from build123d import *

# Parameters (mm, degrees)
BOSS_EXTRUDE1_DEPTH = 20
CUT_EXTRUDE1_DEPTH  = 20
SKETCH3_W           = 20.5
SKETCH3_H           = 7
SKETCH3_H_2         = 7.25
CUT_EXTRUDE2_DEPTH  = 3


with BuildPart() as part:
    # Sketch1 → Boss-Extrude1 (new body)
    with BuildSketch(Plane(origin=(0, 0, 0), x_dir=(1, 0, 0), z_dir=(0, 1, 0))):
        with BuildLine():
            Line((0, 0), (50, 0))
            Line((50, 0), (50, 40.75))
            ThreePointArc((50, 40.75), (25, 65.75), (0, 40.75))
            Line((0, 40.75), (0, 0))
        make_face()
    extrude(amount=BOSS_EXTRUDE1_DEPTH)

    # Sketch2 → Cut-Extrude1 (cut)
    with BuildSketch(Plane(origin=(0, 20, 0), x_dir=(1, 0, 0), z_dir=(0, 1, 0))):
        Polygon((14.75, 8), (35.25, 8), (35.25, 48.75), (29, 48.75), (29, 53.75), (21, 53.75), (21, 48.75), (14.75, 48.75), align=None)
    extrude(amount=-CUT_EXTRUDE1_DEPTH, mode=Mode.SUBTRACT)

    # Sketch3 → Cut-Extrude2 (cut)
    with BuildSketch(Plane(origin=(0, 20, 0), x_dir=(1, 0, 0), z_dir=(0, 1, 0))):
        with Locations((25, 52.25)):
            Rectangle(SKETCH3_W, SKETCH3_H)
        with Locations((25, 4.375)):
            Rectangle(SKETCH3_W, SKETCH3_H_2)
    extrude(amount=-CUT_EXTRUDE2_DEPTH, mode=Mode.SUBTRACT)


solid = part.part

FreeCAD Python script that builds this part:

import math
import FreeCAD as App
import Part
import Sketcher
Q = App.Units.Quantity

doc = App.newDocument("Part")
body = doc.addObject("PartDesign::Body", "Body")

# Sketch on XZ plane
sketch1 = doc.addObject("Sketcher::SketchObject", "Sketch")
body.addObject(sketch1)
sketch1.AttachmentSupport = (doc.XZ_Plane, [""])
sketch1.MapMode = "FlatFace"
sketch1.addGeometry([
    Part.LineSegment(App.Vector(0, 0, 0), App.Vector(50, 0, 0)),
    Part.LineSegment(App.Vector(50, 0, 0), App.Vector(50, -40.75, 0)),
    Part.ArcOfCircle(Part.Circle(App.Vector(25, -40.75, 0), App.Vector(0, 0, 1), 25), math.radians(180), math.radians(360)),
    Part.LineSegment(App.Vector(0, -40.75, 0), App.Vector(0, 0, 0)),
], False)
sketch1.addConstraint([
    Sketcher.Constraint("Coincident", 0, 2, 1, 1),
    Sketcher.Constraint("Tangent", 1, 2, 2, 2),
    Sketcher.Constraint("Tangent", 2, 1, 3, 1),
    Sketcher.Constraint("Coincident", 3, 2, 0, 1),
    Sketcher.Constraint("Horizontal", 0),
    Sketcher.Constraint("Vertical", 1),
    Sketcher.Constraint("Vertical", 3),
    Sketcher.Constraint("Coincident", 3, 2, -1, 1),
    Sketcher.Constraint("Radius", 2, Q("25 mm")),
    Sketcher.Constraint("DistanceY", 1, 2, 1, 1, Q("40.75 mm")),
])
pad1 = doc.addObject("PartDesign::Pad", "Pad")
body.addObject(pad1)
pad1.Profile = sketch1
pad1.Length = 20
pad1.Reversed = True

# Sketch on XZ plane
sketch2 = doc.addObject("Sketcher::SketchObject", "Sketch001")
body.addObject(sketch2)
sketch2.AttachmentSupport = (doc.XZ_Plane, [""])
sketch2.MapMode = "FlatFace"
sketch2.AttachmentOffset = App.Placement(App.Vector(0, 0, -20), App.Rotation())
sketch2.addGeometry([
    Part.LineSegment(App.Vector(14.75, -8, 0), App.Vector(35.25, -8, 0)),  # 0
    Part.LineSegment(App.Vector(35.25, -8, 0), App.Vector(35.25, -48.75, 0)),  # 1
    Part.LineSegment(App.Vector(35.25, -48.75, 0), App.Vector(29, -48.75, 0)),  # 2
    Part.LineSegment(App.Vector(29, -48.75, 0), App.Vector(29, -53.75, 0)),  # 3
    Part.LineSegment(App.Vector(29, -53.75, 0), App.Vector(21, -53.75, 0)),  # 4
    Part.LineSegment(App.Vector(21, -53.75, 0), App.Vector(21, -48.75, 0)),  # 5
    Part.LineSegment(App.Vector(21, -48.75, 0), App.Vector(14.75, -48.75, 0)),  # 6
    Part.LineSegment(App.Vector(14.75, -48.75, 0), App.Vector(14.75, -8, 0)),  # 7
], False)
sketch2.addConstraint([
    Sketcher.Constraint("Coincident", 0, 2, 1, 1),
    Sketcher.Constraint("Coincident", 1, 2, 2, 1),
    Sketcher.Constraint("Coincident", 2, 2, 3, 1),
    Sketcher.Constraint("Coincident", 3, 2, 4, 1),
    Sketcher.Constraint("Coincident", 4, 2, 5, 1),
    Sketcher.Constraint("Coincident", 5, 2, 6, 1),
    Sketcher.Constraint("Coincident", 6, 2, 7, 1),
    Sketcher.Constraint("Coincident", 7, 2, 0, 1),
    Sketcher.Constraint("Horizontal", 0),
    Sketcher.Constraint("Vertical", 1),
    Sketcher.Constraint("Horizontal", 2),
    Sketcher.Constraint("Vertical", 3),
    Sketcher.Constraint("Horizontal", 4),
    Sketcher.Constraint("Vertical", 5),
    Sketcher.Constraint("Horizontal", 6),
    Sketcher.Constraint("Vertical", 7),
    Sketcher.Constraint("Horizontal", 2, 2, 5, 2),
    Sketcher.Constraint("Equal", 2, 6),
    Sketcher.Constraint("DistanceX", 4, 2, 4, 1, Q("8 mm")),
    Sketcher.Constraint("DistanceY", 3, 2, 3, 1, Q("5 mm")),
    Sketcher.Constraint("DistanceX", 0, 1, 0, 2, Q("20.5 mm")),
    Sketcher.Constraint("DistanceY", 0, 2, -1, 1, Q("8 mm")),
    Sketcher.Constraint("DistanceX", -1, 1, 2, 2, Q("29 mm")),
    Sketcher.Constraint("DistanceY", 1, 2, 1, 1, Q("40.75 mm")),
])
pocket1 = doc.addObject("PartDesign::Pocket", "Pocket")
body.addObject(pocket1)
pocket1.Profile = sketch2
pocket1.Length = 20
pocket1.Reversed = True

# Sketch on XZ plane
sketch3 = doc.addObject("Sketcher::SketchObject", "Sketch002")
body.addObject(sketch3)
sketch3.AttachmentSupport = (doc.XZ_Plane, [""])
sketch3.MapMode = "FlatFace"
sketch3.AttachmentOffset = App.Placement(App.Vector(0, 0, -20), App.Rotation())
sketch3.addGeometry([
    Part.LineSegment(App.Vector(14.75, -55.75, 0), App.Vector(14.75, -48.75, 0)),  # 0
    Part.LineSegment(App.Vector(14.75, -48.75, 0), App.Vector(35.25, -48.75, 0)),  # 1
    Part.LineSegment(App.Vector(35.25, -48.75, 0), App.Vector(35.25, -55.75, 0)),  # 2
    Part.LineSegment(App.Vector(35.25, -55.75, 0), App.Vector(14.75, -55.75, 0)),  # 3
    Part.LineSegment(App.Vector(14.75, -8, 0), App.Vector(14.75, -0.75, 0)),  # 4
    Part.LineSegment(App.Vector(14.75, -0.75, 0), App.Vector(35.25, -0.75, 0)),  # 5
    Part.LineSegment(App.Vector(35.25, -0.75, 0), App.Vector(35.25, -8, 0)),  # 6
    Part.LineSegment(App.Vector(35.25, -8, 0), App.Vector(14.75, -8, 0)),  # 7
], False)
sketch3.addConstraint([
    Sketcher.Constraint("Coincident", 0, 2, 1, 1),
    Sketcher.Constraint("Coincident", 1, 2, 2, 1),
    Sketcher.Constraint("Coincident", 2, 2, 3, 1),
    Sketcher.Constraint("Coincident", 3, 2, 0, 1),
    Sketcher.Constraint("Coincident", 4, 2, 5, 1),
    Sketcher.Constraint("Coincident", 5, 2, 6, 1),
    Sketcher.Constraint("Coincident", 6, 2, 7, 1),
    Sketcher.Constraint("Coincident", 7, 2, 4, 1),
    Sketcher.Constraint("Vertical", 0),
    Sketcher.Constraint("Horizontal", 1),
    Sketcher.Constraint("Vertical", 2),
    Sketcher.Constraint("Horizontal", 3),
    Sketcher.Constraint("Vertical", 4),
    Sketcher.Constraint("Horizontal", 5),
    Sketcher.Constraint("Vertical", 6),
    Sketcher.Constraint("Horizontal", 7),
    Sketcher.Constraint("Vertical", 3, 2, 4, 2),
    Sketcher.Constraint("Vertical", 2, 2, 5, 2),
    Sketcher.Constraint("DistanceY", 0, 1, 0, 2, Q("7 mm")),
    Sketcher.Constraint("DistanceX", 1, 1, 1, 2, Q("20.5 mm")),
    Sketcher.Constraint("DistanceY", 6, 2, -1, 1, Q("8 mm")),
    Sketcher.Constraint("DistanceY", 0, 2, 4, 2, Q("48 mm")),
    Sketcher.Constraint("DistanceY", 4, 1, 4, 2, Q("7.25 mm")),
    Sketcher.Constraint("DistanceX", -1, 1, 0, 2, Q("14.75 mm")),
])
pocket2 = doc.addObject("PartDesign::Pocket", "Pocket001")
body.addObject(pocket2)
pocket2.Profile = sketch3
pocket2.Length = 3
pocket2.Reversed = True

doc.recompute()
